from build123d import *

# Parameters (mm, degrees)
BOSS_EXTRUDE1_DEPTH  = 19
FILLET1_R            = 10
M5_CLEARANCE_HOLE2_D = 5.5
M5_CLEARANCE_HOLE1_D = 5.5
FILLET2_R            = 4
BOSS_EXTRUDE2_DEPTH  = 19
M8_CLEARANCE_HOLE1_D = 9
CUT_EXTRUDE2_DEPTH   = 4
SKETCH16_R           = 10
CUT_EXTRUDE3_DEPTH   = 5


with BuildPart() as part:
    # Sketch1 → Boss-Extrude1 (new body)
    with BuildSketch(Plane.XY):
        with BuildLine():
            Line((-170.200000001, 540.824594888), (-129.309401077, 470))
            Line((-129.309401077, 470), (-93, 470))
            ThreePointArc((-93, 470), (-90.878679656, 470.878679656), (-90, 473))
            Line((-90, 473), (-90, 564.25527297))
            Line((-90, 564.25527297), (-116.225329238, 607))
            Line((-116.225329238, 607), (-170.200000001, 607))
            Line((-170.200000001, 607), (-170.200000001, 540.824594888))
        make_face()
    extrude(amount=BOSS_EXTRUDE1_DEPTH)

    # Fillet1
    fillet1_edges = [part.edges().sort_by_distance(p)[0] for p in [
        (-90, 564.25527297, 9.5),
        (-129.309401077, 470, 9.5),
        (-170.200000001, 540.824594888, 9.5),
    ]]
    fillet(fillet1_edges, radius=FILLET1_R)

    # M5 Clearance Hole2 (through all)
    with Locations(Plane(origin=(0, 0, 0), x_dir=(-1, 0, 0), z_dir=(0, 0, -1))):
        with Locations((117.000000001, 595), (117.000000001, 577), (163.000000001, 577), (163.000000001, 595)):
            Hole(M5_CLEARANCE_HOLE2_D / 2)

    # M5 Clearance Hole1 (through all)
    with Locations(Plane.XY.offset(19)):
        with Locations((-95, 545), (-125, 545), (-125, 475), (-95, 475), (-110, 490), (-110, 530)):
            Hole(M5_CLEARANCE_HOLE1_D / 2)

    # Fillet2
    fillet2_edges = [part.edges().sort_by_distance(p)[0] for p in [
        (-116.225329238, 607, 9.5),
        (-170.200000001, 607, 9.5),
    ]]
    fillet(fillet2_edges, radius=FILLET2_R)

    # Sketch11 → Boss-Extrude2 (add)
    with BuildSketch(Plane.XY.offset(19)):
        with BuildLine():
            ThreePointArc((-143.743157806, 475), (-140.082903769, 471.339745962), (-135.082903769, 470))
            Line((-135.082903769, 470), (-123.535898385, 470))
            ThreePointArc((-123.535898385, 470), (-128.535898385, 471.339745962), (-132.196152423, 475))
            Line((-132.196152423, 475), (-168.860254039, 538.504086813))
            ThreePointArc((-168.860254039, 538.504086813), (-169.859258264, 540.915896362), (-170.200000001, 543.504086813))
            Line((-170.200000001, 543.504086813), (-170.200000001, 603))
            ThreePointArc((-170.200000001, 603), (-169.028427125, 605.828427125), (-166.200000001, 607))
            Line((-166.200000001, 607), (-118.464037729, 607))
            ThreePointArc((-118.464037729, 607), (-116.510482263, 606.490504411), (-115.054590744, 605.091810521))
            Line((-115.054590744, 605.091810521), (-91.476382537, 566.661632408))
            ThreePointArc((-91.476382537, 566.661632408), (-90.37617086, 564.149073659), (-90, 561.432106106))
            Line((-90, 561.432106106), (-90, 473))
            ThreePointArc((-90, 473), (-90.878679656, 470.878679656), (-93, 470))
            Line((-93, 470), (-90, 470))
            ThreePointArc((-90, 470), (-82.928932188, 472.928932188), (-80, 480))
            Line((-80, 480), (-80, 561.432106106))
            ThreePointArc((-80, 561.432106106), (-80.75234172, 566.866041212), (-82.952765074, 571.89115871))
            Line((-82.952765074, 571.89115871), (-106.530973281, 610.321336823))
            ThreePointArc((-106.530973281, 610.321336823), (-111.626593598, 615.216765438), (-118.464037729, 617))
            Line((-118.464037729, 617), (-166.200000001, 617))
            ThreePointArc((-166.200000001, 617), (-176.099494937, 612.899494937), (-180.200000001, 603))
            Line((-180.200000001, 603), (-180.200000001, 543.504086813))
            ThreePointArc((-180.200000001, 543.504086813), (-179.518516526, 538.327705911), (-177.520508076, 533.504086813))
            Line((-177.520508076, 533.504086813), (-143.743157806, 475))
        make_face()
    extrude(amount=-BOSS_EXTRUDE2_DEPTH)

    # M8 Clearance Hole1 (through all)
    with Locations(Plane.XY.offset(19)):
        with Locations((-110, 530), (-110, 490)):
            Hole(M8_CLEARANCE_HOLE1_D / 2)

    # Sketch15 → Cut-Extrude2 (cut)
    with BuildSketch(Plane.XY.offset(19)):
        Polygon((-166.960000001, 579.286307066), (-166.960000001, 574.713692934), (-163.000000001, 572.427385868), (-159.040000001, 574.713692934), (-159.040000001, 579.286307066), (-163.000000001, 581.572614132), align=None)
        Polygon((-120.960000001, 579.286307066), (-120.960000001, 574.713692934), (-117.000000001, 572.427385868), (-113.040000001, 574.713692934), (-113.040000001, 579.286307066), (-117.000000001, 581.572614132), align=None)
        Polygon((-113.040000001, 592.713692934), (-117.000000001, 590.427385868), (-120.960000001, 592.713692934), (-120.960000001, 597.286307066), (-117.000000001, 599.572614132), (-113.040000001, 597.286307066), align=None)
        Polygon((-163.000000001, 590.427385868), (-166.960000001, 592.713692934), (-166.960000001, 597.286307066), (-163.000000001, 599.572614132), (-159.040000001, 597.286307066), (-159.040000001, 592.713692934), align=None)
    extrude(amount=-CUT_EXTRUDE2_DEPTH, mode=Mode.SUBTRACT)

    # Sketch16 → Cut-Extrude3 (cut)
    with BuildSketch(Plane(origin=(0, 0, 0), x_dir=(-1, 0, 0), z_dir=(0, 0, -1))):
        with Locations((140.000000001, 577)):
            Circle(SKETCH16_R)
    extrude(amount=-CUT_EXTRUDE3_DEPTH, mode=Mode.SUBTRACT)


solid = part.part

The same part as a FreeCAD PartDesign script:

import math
import FreeCAD as App
import Part
import Sketcher

V = App.Vector
Q = App.Units.Quantity


def edges_at(feature, points):
    """Names of the edges that pass closest to the given points."""
    edges = feature.Shape.Edges
    near = lambda p: min(range(len(edges)), key=lambda i: edges[i].distToShape(Part.Vertex(*p))[0])
    return sorted({f"Edge{near(p) + 1}" for p in points})


def add_polygon(sketch, points):
    """Adds a closed chain of lines whose ends are joined by coincident constraints."""
    first, n = sketch.GeometryCount, len(points)
    for a, b in zip(points, points[1:] + points[:1]):
        sketch.addGeometry(Part.LineSegment(App.Vector(*a, 0), App.Vector(*b, 0)), False)
    for i in range(n):
        sketch.addConstraint(Sketcher.Constraint("Coincident", first + i, 2, first + (i + 1) % n, 1))

doc = App.newDocument("Part")
body = doc.addObject("PartDesign::Body", "Body")

# Sketch on XY plane
sketch1 = body.newObject("Sketcher::SketchObject", "Sketch")
sketch1.AttachmentSupport = (doc.getObject("XY_Plane"), [""])
sketch1.MapMode = "FlatFace"
sketch1.addGeometry(Part.LineSegment(V(-170.2, 540.8, 0), V(-129.3, 470, 0)), False)
sketch1.addGeometry(Part.LineSegment(V(-129.3, 470, 0), V(-93, 470, 0)), False)
sketch1.addGeometry(Part.ArcOfCircle(Part.Circle(V(-93, 473, 0), V(0, 0, 1), 3), math.radians(-90), math.radians(0)), False)
sketch1.addGeometry(Part.LineSegment(V(-90, 473, 0), V(-90, 564.3, 0)), False)
sketch1.addGeometry(Part.LineSegment(V(-90, 564.3, 0), V(-116.2, 607, 0)), False)
sketch1.addGeometry(Part.LineSegment(V(-116.2, 607, 0), V(-170.2, 607, 0)), False)
sketch1.addGeometry(Part.LineSegment(V(-170.2, 607, 0), V(-170.2, 540.8, 0)), False)
sketch1.addConstraint(Sketcher.Constraint("Coincident", 0, 2, 1, 1))
sketch1.addConstraint(Sketcher.Constraint("Tangent", 1, 2, 2, 1))
sketch1.addConstraint(Sketcher.Constraint("Tangent", 2, 2, 3, 1))
sketch1.addConstraint(Sketcher.Constraint("Coincident", 3, 2, 4, 1))
sketch1.addConstraint(Sketcher.Constraint("Coincident", 4, 2, 5, 1))
sketch1.addConstraint(Sketcher.Constraint("Coincident", 5, 2, 6, 1))
sketch1.addConstraint(Sketcher.Constraint("Coincident", 6, 2, 0, 1))
sketch1.addConstraint(Sketcher.Constraint("Horizontal", 1))
sketch1.addConstraint(Sketcher.Constraint("Vertical", 3))
sketch1.addConstraint(Sketcher.Constraint("Horizontal", 5))
sketch1.addConstraint(Sketcher.Constraint("Vertical", 6))
sketch1.addConstraint(Sketcher.Constraint("Radius", 2, 3.0))
sketch1.addConstraint(Sketcher.Constraint("Angle", 0, Q("-60 deg")))
sketch1.addConstraint(Sketcher.Constraint("DistanceX", 2, 3, -1, 1, 93.0))
sketch1.addConstraint(Sketcher.Constraint("DistanceY", -1, 1, 2, 3, 473.0))
sketch1.addConstraint(Sketcher.Constraint("DistanceY", -1, 1, 4, 2, 607.0))
sketch1.addConstraint(Sketcher.Constraint("DistanceX", 5, 2, -1, 1, 170.2))
sketch1.addConstraint(Sketcher.Constraint("DistanceX", 1, 1, 1, 2, 36.309401))
sketch1.addConstraint(Sketcher.Constraint("DistanceX", 5, 2, 5, 1, 53.974671))
sketch1.addConstraint(Sketcher.Constraint("DistanceY", 3, 1, 3, 2, 91.255273))
pad1 = body.newObject("PartDesign::Pad", "Pad")
pad1.Profile = sketch1
pad1.Length = 19
doc.recompute()

fillet = body.newObject("PartDesign::Fillet", "Fillet")
fillet.Base = (pad1, edges_at(pad1, [(-90, 564.255, 9.5), (-129.309, 470, 9.5), (-170.2, 540.825, 9.5)]))
fillet.Radius = 10

# Sketch on XY plane
sketch2 = body.newObject("Sketcher::SketchObject", "Sketch001")
sketch2.AttachmentSupport = (doc.getObject("XY_Plane"), [""])
sketch2.MapMode = "FlatFace"
sketch2.addGeometry(Part.Circle(V(-117, 595, 0), V(0, 0, 1), 2.8), False)
sketch2.addGeometry(Part.Circle(V(-117, 577, 0), V(0, 0, 1), 2.8), False)
sketch2.addGeometry(Part.Circle(V(-163, 577, 0), V(0, 0, 1), 2.8), False)
sketch2.addGeometry(Part.Circle(V(-163, 595, 0), V(0, 0, 1), 2.8), False)
sketch2.addConstraint(Sketcher.Constraint("Equal", 0, 1))
sketch2.addConstraint(Sketcher.Constraint("Equal", 1, 2))
sketch2.addConstraint(Sketcher.Constraint("Equal", 2, 3))
sketch2.addConstraint(Sketcher.Constraint("Horizontal", 1, 3, 2, 3))
sketch2.addConstraint(Sketcher.Constraint("Horizontal", 0, 3, 3, 3))
sketch2.addConstraint(Sketcher.Constraint("Vertical", 0, 3, 1, 3))
sketch2.addConstraint(Sketcher.Constraint("Vertical", 2, 3, 3, 3))
sketch2.addConstraint(Sketcher.Constraint("Diameter", 0, 5.5))
sketch2.addConstraint(Sketcher.Constraint("DistanceX", 0, 3, -1, 1, 117.0))
sketch2.addConstraint(Sketcher.Constraint("DistanceY", -1, 1, 0, 3, 595.0))
sketch2.addConstraint(Sketcher.Constraint("DistanceY", -1, 1, 1, 3, 577.0))
sketch2.addConstraint(Sketcher.Constraint("DistanceX", 2, 3, -1, 1, 163.0))
doc.recompute()
hole = body.newObject("PartDesign::Hole", "Hole")
hole.Profile = sketch2
hole.ThreadType = "None"
hole.Diameter = 5.5
hole.DepthType = "ThroughAll"
hole.Reversed = True

# Sketch on XY plane
sketch3 = body.newObject("Sketcher::SketchObject", "Sketch002")
sketch3.AttachmentSupport = (doc.getObject("XY_Plane"), [""])
sketch3.MapMode = "FlatFace"
sketch3.AttachmentOffset = App.Placement(V(0, 0, 19), App.Rotation())
sketch3.addGeometry(Part.Circle(V(-95, 545, 0), V(0, 0, 1), 2.8), False)
sketch3.addGeometry(Part.Circle(V(-125, 545, 0), V(0, 0, 1), 2.8), False)
sketch3.addGeometry(Part.Circle(V(-125, 475, 0), V(0, 0, 1), 2.8), False)
sketch3.addGeometry(Part.Circle(V(-95, 475, 0), V(0, 0, 1), 2.8), False)
sketch3.addGeometry(Part.Circle(V(-110, 490, 0), V(0, 0, 1), 2.8), False)
sketch3.addGeometry(Part.Circle(V(-110, 530, 0), V(0, 0, 1), 2.8), False)
sketch3.addConstraint(Sketcher.Constraint("Equal", 0, 1))
sketch3.addConstraint(Sketcher.Constraint("Equal", 1, 2))
sketch3.addConstraint(Sketcher.Constraint("Equal", 2, 3))
sketch3.addConstraint(Sketcher.Constraint("Equal", 3, 4))
sketch3.addConstraint(Sketcher.Constraint("Equal", 4, 5))
sketch3.addConstraint(Sketcher.Constraint("Horizontal", 0, 3, 1, 3))
sketch3.addConstraint(Sketcher.Constraint("Horizontal", 2, 3, 3, 3))
sketch3.addConstraint(Sketcher.Constraint("Vertical", 1, 3, 2, 3))
sketch3.addConstraint(Sketcher.Constraint("Vertical", 0, 3, 3, 3))
sketch3.addConstraint(Sketcher.Constraint("Vertical", 4, 3, 5, 3))
sketch3.addConstraint(Sketcher.Constraint("Diameter", 0, 5.5))
sketch3.addConstraint(Sketcher.Constraint("DistanceX", 0, 3, -1, 1, 95.0))
sketch3.addConstraint(Sketcher.Constraint("DistanceY", -1, 1, 0, 3, 545.0))
sketch3.addConstraint(Sketcher.Constraint("DistanceX", 1, 3, -1, 1, 125.0))
sketch3.addConstraint(Sketcher.Constraint("DistanceY", -1, 1, 2, 3, 475.0))
sketch3.addConstraint(Sketcher.Constraint("DistanceX", 4, 3, -1, 1, 110.0))
sketch3.addConstraint(Sketcher.Constraint("DistanceY", -1, 1, 4, 3, 490.0))
sketch3.addConstraint(Sketcher.Constraint("DistanceY", -1, 1, 5, 3, 530.0))
doc.recompute()
hole2 = body.newObject("PartDesign::Hole", "Hole001")
hole2.Profile = sketch3
hole2.ThreadType = "None"
hole2.Diameter = 5.5
hole2.DepthType = "ThroughAll"
doc.recompute()

fillet2 = body.newObject("PartDesign::Fillet", "Fillet001")
fillet2.Base = (hole2, edges_at(hole2, [(-116.225, 607, 9.5), (-170.2, 607, 9.5)]))
fillet2.Radius = 4

# Sketch on XY plane
sketch4 = body.newObject("Sketcher::SketchObject", "Sketch003")
sketch4.AttachmentSupport = (doc.getObject("XY_Plane"), [""])
sketch4.MapMode = "FlatFace"
sketch4.AttachmentOffset = App.Placement(V(0, 0, 19), App.Rotation())
sketch4.addGeometry(Part.ArcOfCircle(Part.Circle(V(-135.1, 480, 0), V(0, 0, 1), 10), math.radians(-150), math.radians(-90)), False)
sketch4.addGeometry(Part.LineSegment(V(-135.1, 470, 0), V(-123.5, 470, 0)), False)
sketch4.addGeometry(Part.ArcOfCircle(Part.Circle(V(-123.5, 480, 0), V(0, 0, 1), 10), math.radians(-150), math.radians(-90)), False)
sketch4.addGeometry(Part.LineSegment(V(-132.2, 475, 0), V(-168.9, 538.5, 0)), False)
sketch4.addGeometry(Part.ArcOfCircle(Part.Circle(V(-160.2, 543.5, 0), V(0, 0, 1), 10), math.radians(180), math.radians(210)), False)
sketch4.addGeometry(Part.LineSegment(V(-170.2, 543.5, 0), V(-170.2, 603, 0)), False)
sketch4.addGeometry(Part.ArcOfCircle(Part.Circle(V(-166.2, 603, 0), V(0, 0, 1), 4), math.radians(90), math.radians(180)), False)
sketch4.addGeometry(Part.LineSegment(V(-166.2, 607, 0), V(-118.5, 607, 0)), False)
sketch4.addGeometry(Part.ArcOfCircle(Part.Circle(V(-118.5, 603, 0), V(0, 0, 1), 4), math.radians(32), math.radians(90)), False)
sketch4.addGeometry(Part.LineSegment(V(-115.1, 605.1, 0), V(-91.5, 566.7, 0)), False)
sketch4.addGeometry(Part.ArcOfCircle(Part.Circle(V(-100, 561.4, 0), V(0, 0, 1), 10), math.radians(0), math.radians(32)), False)
sketch4.addGeometry(Part.LineSegment(V(-90, 561.4, 0), V(-90, 473, 0)), False)
sketch4.addGeometry(Part.ArcOfCircle(Part.Circle(V(-93, 473, 0), V(0, 0, 1), 3), math.radians(-90), math.radians(0)), False)
sketch4.addGeometry(Part.LineSegment(V(-93, 470, 0), V(-90, 470, 0)), False)
sketch4.addGeometry(Part.ArcOfCircle(Part.Circle(V(-90, 480, 0), V(0, 0, 1), 10), math.radians(-90), math.radians(0)), False)
sketch4.addGeometry(Part.LineSegment(V(-80, 480, 0), V(-80, 561.4, 0)), False)
sketch4.addGeometry(Part.ArcOfCircle(Part.Circle(V(-100, 561.4, 0), V(0, 0, 1), 20), math.radians(0), math.radians(32)), False)
sketch4.addGeometry(Part.LineSegment(V(-83, 571.9, 0), V(-106.5, 610.3, 0)), False)
sketch4.addGeometry(Part.ArcOfCircle(Part.Circle(V(-118.5, 603, 0), V(0, 0, 1), 14), math.radians(32), math.radians(90)), False)
sketch4.addGeometry(Part.LineSegment(V(-118.5, 617, 0), V(-166.2, 617, 0)), False)
sketch4.addGeometry(Part.ArcOfCircle(Part.Circle(V(-166.2, 603, 0), V(0, 0, 1), 14), math.radians(90), math.radians(180)), False)
sketch4.addGeometry(Part.LineSegment(V(-180.2, 603, 0), V(-180.2, 543.5, 0)), False)
sketch4.addGeometry(Part.ArcOfCircle(Part.Circle(V(-160.2, 543.5, 0), V(0, 0, 1), 20), math.radians(-180), math.radians(-150)), False)
sketch4.addGeometry(Part.LineSegment(V(-177.5, 533.5, 0), V(-143.7, 475, 0)), False)
sketch4.addConstraint(Sketcher.Constraint("Tangent", 0, 2, 1, 1))
sketch4.addConstraint(Sketcher.Constraint("Tangent", 1, 2, 2, 2))
sketch4.addConstraint(Sketcher.Constraint("Tangent", 2, 1, 3, 1))
sketch4.addConstraint(Sketcher.Constraint("Tangent", 3, 2, 4, 2))
sketch4.addConstraint(Sketcher.Constraint("Tangent", 4, 1, 5, 1))
sketch4.addConstraint(Sketcher.Constraint("Tangent", 5, 2, 6, 2))
sketch4.addConstraint(Sketcher.Constraint("Tangent", 6, 1, 7, 1))
sketch4.addConstraint(Sketcher.Constraint("Tangent", 7, 2, 8, 2))
sketch4.addConstraint(Sketcher.Constraint("Tangent", 8, 1, 9, 1))
sketch4.addConstraint(Sketcher.Constraint("Tangent", 9, 2, 10, 2))
sketch4.addConstraint(Sketcher.Constraint("Tangent", 10, 1, 11, 1))
sketch4.addConstraint(Sketcher.Constraint("Tangent", 11, 2, 12, 2))
sketch4.addConstraint(Sketcher.Constraint("Tangent", 12, 1, 13, 1))
sketch4.addConstraint(Sketcher.Constraint("Tangent", 13, 2, 14, 1))
sketch4.addConstraint(Sketcher.Constraint("Tangent", 14, 2, 15, 1))
sketch4.addConstraint(Sketcher.Constraint("Tangent", 15, 2, 16, 1))
sketch4.addConstraint(Sketcher.Constraint("Tangent", 16, 2, 17, 1))
sketch4.addConstraint(Sketcher.Constraint("Tangent", 17, 2, 18, 1))
sketch4.addConstraint(Sketcher.Constraint("Tangent", 18, 2, 19, 1))
sketch4.addConstraint(Sketcher.Constraint("Tangent", 19, 2, 20, 1))
sketch4.addConstraint(Sketcher.Constraint("Tangent", 20, 2, 21, 1))
sketch4.addConstraint(Sketcher.Constraint("Tangent", 21, 2, 22, 1))
sketch4.addConstraint(Sketcher.Constraint("Tangent", 22, 2, 23, 1))
sketch4.addConstraint(Sketcher.Constraint("Tangent", 23, 2, 0, 1))
sketch4.addConstraint(Sketcher.Constraint("Horizontal", 1))
sketch4.addConstraint(Sketcher.Constraint("Vertical", 5))
sketch4.addConstraint(Sketcher.Constraint("Horizontal", 7))
sketch4.addConstraint(Sketcher.Constraint("Vertical", 11))
sketch4.addConstraint(Sketcher.Constraint("Horizontal", 13))
sketch4.addConstraint(Sketcher.Constraint("Vertical", 15))
sketch4.addConstraint(Sketcher.Constraint("Horizontal", 19))
sketch4.addConstraint(Sketcher.Constraint("Vertical", 21))
sketch4.addConstraint(Sketcher.Constraint("Coincident", 16, 3, 10, 3))
sketch4.addConstraint(Sketcher.Constraint("Coincident", 18, 3, 8, 3))
sketch4.addConstraint(Sketcher.Constraint("Coincident", 20, 3, 6, 3))
sketch4.addConstraint(Sketcher.Constraint("Coincident", 22, 3, 4, 3))
sketch4.addConstraint(Sketcher.Constraint("Equal", 0, 2))
sketch4.addConstraint(Sketcher.Constraint("Equal", 2, 4))
sketch4.addConstraint(Sketcher.Constraint("Equal", 6, 8))
sketch4.addConstraint(Sketcher.Constraint("Equal", 4, 10))
sketch4.addConstraint(Sketcher.Constraint("Equal", 10, 14))
sketch4.addConstraint(Sketcher.Constraint("Equal", 16, 22))
sketch4.addConstraint(Sketcher.Constraint("Parallel", 3, 23))
sketch4.addConstraint(Sketcher.Constraint("Horizontal", 2, 3, 14, 3))
sketch4.addConstraint(Sketcher.Constraint("Vertical", 14, 3, 10, 1))
sketch4.addConstraint(Sketcher.Constraint("Radius", 0, 10.0))
sketch4.addConstraint(Sketcher.Constraint("Radius", 6, 4.0))
sketch4.addConstraint(Sketcher.Constraint("Radius", 12, 3.0))
sketch4.addConstraint(Sketcher.Constraint("Angle", 3, Q("120 deg")))
sketch4.addConstraint(Sketcher.Constraint("DistanceY", -1, 1, 0, 3, 480.0))
sketch4.addConstraint(Sketcher.Constraint("DistanceY", -1, 1, 6, 3, 603.0))
sketch4.addConstraint(Sketcher.Constraint("DistanceX", 10, 3, -1, 1, 100.0))
sketch4.addConstraint(Sketcher.Constraint("DistanceX", 4, 3, -1, 1, 160.2))
sketch4.addConstraint(Sketcher.Constraint("Distance", 9, 45.0867))
sketch4.addConstraint(Sketcher.Constraint("Distance", 23, 67.554701))
sketch4.addConstraint(Sketcher.Constraint("DistanceX", 7, 1, 7, 2, 47.735962))
pad2 = body.newObject("PartDesign::Pad", "Pad001")
pad2.Profile = sketch4
pad2.Length = 19
pad2.Reversed = True

# Sketch on XY plane
sketch5 = body.newObject("Sketcher::SketchObject", "Sketch004")
sketch5.AttachmentSupport = (doc.getObject("XY_Plane"), [""])
sketch5.MapMode = "FlatFace"
sketch5.AttachmentOffset = App.Placement(V(0, 0, 19), App.Rotation())
sketch5.addGeometry(Part.Circle(V(-110, 530, 0), V(0, 0, 1), 4.5), False)
sketch5.addGeometry(Part.Circle(V(-110, 490, 0), V(0, 0, 1), 4.5), False)
sketch5.addConstraint(Sketcher.Constraint("Equal", 0, 1))
sketch5.addConstraint(Sketcher.Constraint("Vertical", 0, 3, 1, 3))
sketch5.addConstraint(Sketcher.Constraint("Diameter", 0, 9.0))
sketch5.addConstraint(Sketcher.Constraint("DistanceX", 0, 3, -1, 1, 110.0))
sketch5.addConstraint(Sketcher.Constraint("DistanceY", -1, 1, 0, 3, 530.0))
sketch5.addConstraint(Sketcher.Constraint("DistanceY", -1, 1, 1, 3, 490.0))
doc.recompute()
hole3 = body.newObject("PartDesign::Hole", "Hole002")
hole3.Profile = sketch5
hole3.ThreadType = "None"
hole3.Diameter = 9
hole3.DepthType = "ThroughAll"

# Sketch on XY plane
sketch6 = body.newObject("Sketcher::SketchObject", "Sketch005")
sketch6.AttachmentSupport = (doc.getObject("XY_Plane"), [""])
sketch6.MapMode = "FlatFace"
sketch6.AttachmentOffset = App.Placement(V(0, 0, 19), App.Rotation())
add_polygon(sketch6, [(-167, 579.3), (-167, 574.7), (-163, 572.4), (-159, 574.7), (-159, 579.3), (-163, 581.6)])  # lines 0-5
add_polygon(sketch6, [(-121, 579.3), (-121, 574.7), (-117, 572.4), (-113, 574.7), (-113, 579.3), (-117, 581.6)])  # lines 6-11
add_polygon(sketch6, [(-117, 590.4), (-113, 592.7), (-113, 597.3), (-117, 599.6), (-121, 597.3), (-121, 592.7)])  # lines 12-17
add_polygon(sketch6, [(-167, 592.7), (-163, 590.4), (-159, 592.7), (-159, 597.3), (-163, 599.6), (-167, 597.3)])  # lines 18-23
sketch6.addConstraint(Sketcher.Constraint("Vertical", 0))
sketch6.addConstraint(Sketcher.Constraint("Vertical", 3))
sketch6.addConstraint(Sketcher.Constraint("Vertical", 6))
sketch6.addConstraint(Sketcher.Constraint("Vertical", 9))
sketch6.addConstraint(Sketcher.Constraint("Vertical", 13))
sketch6.addConstraint(Sketcher.Constraint("Vertical", 16))
sketch6.addConstraint(Sketcher.Constraint("Vertical", 20))
sketch6.addConstraint(Sketcher.Constraint("Vertical", 23))
sketch6.addConstraint(Sketcher.Constraint("Parallel", 1, 4))
sketch6.addConstraint(Sketcher.Constraint("Parallel", 2, 5))
sketch6.addConstraint(Sketcher.Constraint("Parallel", 4, 7))
sketch6.addConstraint(Sketcher.Constraint("Parallel", 5, 8))
sketch6.addConstraint(Sketcher.Constraint("Parallel", 7, 10))
sketch6.addConstraint(Sketcher.Constraint("Parallel", 8, 11))
sketch6.addConstraint(Sketcher.Constraint("Parallel", 11, 12))
sketch6.addConstraint(Sketcher.Constraint("Parallel", 10, 14))
sketch6.addConstraint(Sketcher.Constraint("Parallel", 12, 15))
sketch6.addConstraint(Sketcher.Constraint("Parallel", 14, 17))
sketch6.addConstraint(Sketcher.Constraint("Parallel", 17, 18))
sketch6.addConstraint(Sketcher.Constraint("Parallel", 15, 19))
sketch6.addConstraint(Sketcher.Constraint("Parallel", 18, 21))
sketch6.addConstraint(Sketcher.Constraint("Parallel", 19, 22))
sketch6.addConstraint(Sketcher.Constraint("Horizontal", 0, 2, 2, 2))
sketch6.addConstraint(Sketcher.Constraint("Horizontal", 3, 2, 5, 2))
sketch6.addConstraint(Sketcher.Constraint("Horizontal", 2, 2, 6, 2))
sketch6.addConstraint(Sketcher.Constraint("Horizontal", 1, 2, 7, 2))
sketch6.addConstraint(Sketcher.Constraint("Horizontal", 6, 2, 8, 2))
sketch6.addConstraint(Sketcher.Constraint("Horizontal", 5, 2, 9, 2))
sketch6.addConstraint(Sketcher.Constraint("Horizontal", 4, 2, 10, 2))
sketch6.addConstraint(Sketcher.Constraint("Horizontal", 13, 2, 15, 2))
sketch6.addConstraint(Sketcher.Constraint("Horizontal", 12, 2, 16, 2))
sketch6.addConstraint(Sketcher.Constraint("Horizontal", 17, 2, 18, 2))
sketch6.addConstraint(Sketcher.Constraint("Horizontal", 16, 2, 19, 2))
sketch6.addConstraint(Sketcher.Constraint("Horizontal", 15, 2, 20, 2))
sketch6.addConstraint(Sketcher.Constraint("Horizontal", 14, 2, 21, 2))
sketch6.addConstraint(Sketcher.Constraint("Horizontal", 20, 2, 22, 2))
sketch6.addConstraint(Sketcher.Constraint("Vertical", 1, 2, 4, 2))
sketch6.addConstraint(Sketcher.Constraint("Vertical", 9, 2, 12, 2))
sketch6.addConstraint(Sketcher.Constraint("Vertical", 10, 2, 14, 2))
sketch6.addConstraint(Sketcher.Constraint("Vertical", 4, 2, 18, 2))
sketch6.addConstraint(Sketcher.Constraint("Equal", 9, 13))
sketch6.addConstraint(Sketcher.Constraint("Angle", 1, Q("-30 deg")))
sketch6.addConstraint(Sketcher.Constraint("DistanceX", 1, 2, -1, 1, 163.0))
sketch6.addConstraint(Sketcher.Constraint("DistanceX", 7, 2, -1, 1, 117.0))
sketch6.addConstraint(Sketcher.Constraint("DistanceY", 8, 2, 12, 2, 18.0))
sketch6.addConstraint(Sketcher.Constraint("DistanceX", 0, 2, -1, 1, 166.96))
sketch6.addConstraint(Sketcher.Constraint("DistanceY", 0, 2, 0, 1, 4.572614))
sketch6.addConstraint(Sketcher.Constraint("DistanceY", -1, 1, 0, 2, 574.713693))
pocket1 = body.newObject("PartDesign::Pocket", "Pocket")
pocket1.Profile = sketch6
pocket1.Length = 4

# Sketch on XY plane
sketch7 = body.newObject("Sketcher::SketchObject", "Sketch006")
sketch7.AttachmentSupport = (doc.getObject("XY_Plane"), [""])
sketch7.MapMode = "FlatFace"
sketch7.addGeometry(Part.Circle(V(-140, 577, 0), V(0, 0, 1), 10), False)
sketch7.addConstraint(Sketcher.Constraint("Diameter", 0, 20.0))
sketch7.addConstraint(Sketcher.Constraint("DistanceX", 0, 3, -1, 1, 140.0))
sketch7.addConstraint(Sketcher.Constraint("DistanceY", -1, 1, 0, 3, 577.0))
pocket2 = body.newObject("PartDesign::Pocket", "Pocket001")
pocket2.Profile = sketch7
pocket2.Length = 5
pocket2.Reversed = True

doc.recompute()
